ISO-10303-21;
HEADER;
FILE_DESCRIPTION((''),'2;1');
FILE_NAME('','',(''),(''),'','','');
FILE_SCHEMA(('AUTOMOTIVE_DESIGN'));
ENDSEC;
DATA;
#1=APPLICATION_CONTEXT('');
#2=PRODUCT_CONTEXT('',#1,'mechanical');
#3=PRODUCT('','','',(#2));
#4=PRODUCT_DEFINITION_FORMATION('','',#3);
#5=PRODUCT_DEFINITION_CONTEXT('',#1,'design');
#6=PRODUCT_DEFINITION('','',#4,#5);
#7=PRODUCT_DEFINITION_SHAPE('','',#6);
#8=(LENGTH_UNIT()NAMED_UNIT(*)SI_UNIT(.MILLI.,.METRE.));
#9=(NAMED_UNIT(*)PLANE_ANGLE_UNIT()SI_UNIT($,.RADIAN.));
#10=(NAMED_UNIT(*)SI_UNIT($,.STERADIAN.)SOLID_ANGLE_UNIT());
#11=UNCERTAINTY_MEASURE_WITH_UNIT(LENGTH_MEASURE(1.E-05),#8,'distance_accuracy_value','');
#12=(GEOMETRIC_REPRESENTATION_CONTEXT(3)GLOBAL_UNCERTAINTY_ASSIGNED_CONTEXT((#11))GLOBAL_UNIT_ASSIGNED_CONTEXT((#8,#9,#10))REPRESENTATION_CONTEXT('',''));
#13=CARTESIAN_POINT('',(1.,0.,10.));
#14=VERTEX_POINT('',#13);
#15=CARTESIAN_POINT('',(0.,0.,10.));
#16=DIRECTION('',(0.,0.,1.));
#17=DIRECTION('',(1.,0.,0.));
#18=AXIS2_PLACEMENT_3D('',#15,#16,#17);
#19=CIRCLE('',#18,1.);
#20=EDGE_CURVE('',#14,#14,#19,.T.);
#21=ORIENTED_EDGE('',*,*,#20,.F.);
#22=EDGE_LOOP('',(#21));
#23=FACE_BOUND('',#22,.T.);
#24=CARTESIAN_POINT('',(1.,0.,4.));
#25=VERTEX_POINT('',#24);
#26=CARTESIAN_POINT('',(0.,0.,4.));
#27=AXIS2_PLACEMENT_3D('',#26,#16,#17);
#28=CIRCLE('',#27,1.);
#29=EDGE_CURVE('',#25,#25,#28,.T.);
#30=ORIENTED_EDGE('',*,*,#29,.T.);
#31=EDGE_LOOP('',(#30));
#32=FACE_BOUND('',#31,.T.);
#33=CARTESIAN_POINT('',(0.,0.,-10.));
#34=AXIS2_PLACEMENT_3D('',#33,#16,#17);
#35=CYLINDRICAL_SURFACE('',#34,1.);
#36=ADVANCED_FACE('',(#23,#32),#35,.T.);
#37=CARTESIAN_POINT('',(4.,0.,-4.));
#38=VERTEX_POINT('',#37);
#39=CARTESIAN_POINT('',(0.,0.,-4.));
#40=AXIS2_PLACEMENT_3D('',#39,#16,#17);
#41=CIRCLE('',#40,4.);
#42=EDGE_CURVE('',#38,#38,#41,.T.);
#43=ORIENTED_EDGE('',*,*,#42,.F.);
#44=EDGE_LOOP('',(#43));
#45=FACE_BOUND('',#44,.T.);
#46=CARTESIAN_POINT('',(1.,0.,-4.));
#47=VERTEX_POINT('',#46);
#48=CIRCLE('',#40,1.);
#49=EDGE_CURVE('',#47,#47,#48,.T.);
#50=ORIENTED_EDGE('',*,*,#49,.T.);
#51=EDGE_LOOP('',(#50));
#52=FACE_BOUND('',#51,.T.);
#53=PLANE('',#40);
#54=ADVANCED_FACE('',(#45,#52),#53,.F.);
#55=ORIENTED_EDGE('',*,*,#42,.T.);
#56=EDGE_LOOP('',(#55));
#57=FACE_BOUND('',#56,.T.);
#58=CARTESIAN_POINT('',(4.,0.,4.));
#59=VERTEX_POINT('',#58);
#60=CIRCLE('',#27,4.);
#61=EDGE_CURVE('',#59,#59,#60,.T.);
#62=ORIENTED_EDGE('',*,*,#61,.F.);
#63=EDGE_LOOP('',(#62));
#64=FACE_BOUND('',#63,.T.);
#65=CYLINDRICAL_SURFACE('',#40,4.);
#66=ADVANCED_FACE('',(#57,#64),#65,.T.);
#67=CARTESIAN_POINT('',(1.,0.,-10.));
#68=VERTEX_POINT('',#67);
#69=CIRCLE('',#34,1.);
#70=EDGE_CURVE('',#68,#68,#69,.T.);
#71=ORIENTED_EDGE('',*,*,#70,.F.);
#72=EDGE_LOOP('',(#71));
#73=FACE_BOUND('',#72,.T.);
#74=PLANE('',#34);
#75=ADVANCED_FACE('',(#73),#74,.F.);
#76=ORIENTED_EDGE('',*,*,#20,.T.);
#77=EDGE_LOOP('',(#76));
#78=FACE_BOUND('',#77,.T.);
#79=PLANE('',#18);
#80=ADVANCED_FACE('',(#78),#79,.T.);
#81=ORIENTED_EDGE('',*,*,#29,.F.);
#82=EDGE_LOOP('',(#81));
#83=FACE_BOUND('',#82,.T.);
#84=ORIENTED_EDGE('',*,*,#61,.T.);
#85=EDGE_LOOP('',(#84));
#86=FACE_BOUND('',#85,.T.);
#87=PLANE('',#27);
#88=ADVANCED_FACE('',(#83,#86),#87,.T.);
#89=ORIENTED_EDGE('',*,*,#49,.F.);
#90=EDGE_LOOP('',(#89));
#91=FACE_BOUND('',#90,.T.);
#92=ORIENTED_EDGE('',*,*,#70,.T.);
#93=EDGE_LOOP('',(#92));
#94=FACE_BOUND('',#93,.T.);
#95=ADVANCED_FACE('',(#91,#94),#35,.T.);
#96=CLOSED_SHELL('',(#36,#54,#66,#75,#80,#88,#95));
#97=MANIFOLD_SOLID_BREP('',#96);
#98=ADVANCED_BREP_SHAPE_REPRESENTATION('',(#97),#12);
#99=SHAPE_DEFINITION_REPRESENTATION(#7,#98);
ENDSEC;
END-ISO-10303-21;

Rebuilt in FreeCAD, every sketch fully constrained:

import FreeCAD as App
import Part
import Sketcher

V = App.Vector

doc = App.newDocument("Part")
body = doc.addObject("PartDesign::Body", "Body")

# Sketch on XY plane
sketch1 = body.newObject("Sketcher::SketchObject", "Sketch")
sketch1.AttachmentSupport = (doc.getObject("XY_Plane"), [""])
sketch1.MapMode = "FlatFace"
sketch1.addGeometry(Part.Circle(V(0, 0, 0), V(0, 0, 1), 4), False)
sketch1.addConstraint([
    Sketcher.Constraint("Coincident", 0, 3, -1, 1),
    Sketcher.Constraint("Diameter", 0, 8.0),
])
pad1 = body.newObject("PartDesign::Pad", "Pad")
pad1.Profile = sketch1
pad1.Type = "TwoLengths"
pad1.Length = 4
pad1.Length2 = 4

# Sketch on XY plane
sketch2 = body.newObject("Sketcher::SketchObject", "Sketch001")
sketch2.AttachmentSupport = (doc.getObject("XY_Plane"), [""])
sketch2.MapMode = "FlatFace"
sketch2.addGeometry(Part.Circle(V(0, 0, 0), V(0, 0, 1), 1), False)
sketch2.addConstraint([
    Sketcher.Constraint("Coincident", 0, 3, -1, 1),
    Sketcher.Constraint("Diameter", 0, 2.0),
])
pad2 = body.newObject("PartDesign::Pad", "Pad001")
pad2.Profile = sketch2
pad2.Type = "TwoLengths"
pad2.Length = 10
pad2.Length2 = 10

doc.recompute()
